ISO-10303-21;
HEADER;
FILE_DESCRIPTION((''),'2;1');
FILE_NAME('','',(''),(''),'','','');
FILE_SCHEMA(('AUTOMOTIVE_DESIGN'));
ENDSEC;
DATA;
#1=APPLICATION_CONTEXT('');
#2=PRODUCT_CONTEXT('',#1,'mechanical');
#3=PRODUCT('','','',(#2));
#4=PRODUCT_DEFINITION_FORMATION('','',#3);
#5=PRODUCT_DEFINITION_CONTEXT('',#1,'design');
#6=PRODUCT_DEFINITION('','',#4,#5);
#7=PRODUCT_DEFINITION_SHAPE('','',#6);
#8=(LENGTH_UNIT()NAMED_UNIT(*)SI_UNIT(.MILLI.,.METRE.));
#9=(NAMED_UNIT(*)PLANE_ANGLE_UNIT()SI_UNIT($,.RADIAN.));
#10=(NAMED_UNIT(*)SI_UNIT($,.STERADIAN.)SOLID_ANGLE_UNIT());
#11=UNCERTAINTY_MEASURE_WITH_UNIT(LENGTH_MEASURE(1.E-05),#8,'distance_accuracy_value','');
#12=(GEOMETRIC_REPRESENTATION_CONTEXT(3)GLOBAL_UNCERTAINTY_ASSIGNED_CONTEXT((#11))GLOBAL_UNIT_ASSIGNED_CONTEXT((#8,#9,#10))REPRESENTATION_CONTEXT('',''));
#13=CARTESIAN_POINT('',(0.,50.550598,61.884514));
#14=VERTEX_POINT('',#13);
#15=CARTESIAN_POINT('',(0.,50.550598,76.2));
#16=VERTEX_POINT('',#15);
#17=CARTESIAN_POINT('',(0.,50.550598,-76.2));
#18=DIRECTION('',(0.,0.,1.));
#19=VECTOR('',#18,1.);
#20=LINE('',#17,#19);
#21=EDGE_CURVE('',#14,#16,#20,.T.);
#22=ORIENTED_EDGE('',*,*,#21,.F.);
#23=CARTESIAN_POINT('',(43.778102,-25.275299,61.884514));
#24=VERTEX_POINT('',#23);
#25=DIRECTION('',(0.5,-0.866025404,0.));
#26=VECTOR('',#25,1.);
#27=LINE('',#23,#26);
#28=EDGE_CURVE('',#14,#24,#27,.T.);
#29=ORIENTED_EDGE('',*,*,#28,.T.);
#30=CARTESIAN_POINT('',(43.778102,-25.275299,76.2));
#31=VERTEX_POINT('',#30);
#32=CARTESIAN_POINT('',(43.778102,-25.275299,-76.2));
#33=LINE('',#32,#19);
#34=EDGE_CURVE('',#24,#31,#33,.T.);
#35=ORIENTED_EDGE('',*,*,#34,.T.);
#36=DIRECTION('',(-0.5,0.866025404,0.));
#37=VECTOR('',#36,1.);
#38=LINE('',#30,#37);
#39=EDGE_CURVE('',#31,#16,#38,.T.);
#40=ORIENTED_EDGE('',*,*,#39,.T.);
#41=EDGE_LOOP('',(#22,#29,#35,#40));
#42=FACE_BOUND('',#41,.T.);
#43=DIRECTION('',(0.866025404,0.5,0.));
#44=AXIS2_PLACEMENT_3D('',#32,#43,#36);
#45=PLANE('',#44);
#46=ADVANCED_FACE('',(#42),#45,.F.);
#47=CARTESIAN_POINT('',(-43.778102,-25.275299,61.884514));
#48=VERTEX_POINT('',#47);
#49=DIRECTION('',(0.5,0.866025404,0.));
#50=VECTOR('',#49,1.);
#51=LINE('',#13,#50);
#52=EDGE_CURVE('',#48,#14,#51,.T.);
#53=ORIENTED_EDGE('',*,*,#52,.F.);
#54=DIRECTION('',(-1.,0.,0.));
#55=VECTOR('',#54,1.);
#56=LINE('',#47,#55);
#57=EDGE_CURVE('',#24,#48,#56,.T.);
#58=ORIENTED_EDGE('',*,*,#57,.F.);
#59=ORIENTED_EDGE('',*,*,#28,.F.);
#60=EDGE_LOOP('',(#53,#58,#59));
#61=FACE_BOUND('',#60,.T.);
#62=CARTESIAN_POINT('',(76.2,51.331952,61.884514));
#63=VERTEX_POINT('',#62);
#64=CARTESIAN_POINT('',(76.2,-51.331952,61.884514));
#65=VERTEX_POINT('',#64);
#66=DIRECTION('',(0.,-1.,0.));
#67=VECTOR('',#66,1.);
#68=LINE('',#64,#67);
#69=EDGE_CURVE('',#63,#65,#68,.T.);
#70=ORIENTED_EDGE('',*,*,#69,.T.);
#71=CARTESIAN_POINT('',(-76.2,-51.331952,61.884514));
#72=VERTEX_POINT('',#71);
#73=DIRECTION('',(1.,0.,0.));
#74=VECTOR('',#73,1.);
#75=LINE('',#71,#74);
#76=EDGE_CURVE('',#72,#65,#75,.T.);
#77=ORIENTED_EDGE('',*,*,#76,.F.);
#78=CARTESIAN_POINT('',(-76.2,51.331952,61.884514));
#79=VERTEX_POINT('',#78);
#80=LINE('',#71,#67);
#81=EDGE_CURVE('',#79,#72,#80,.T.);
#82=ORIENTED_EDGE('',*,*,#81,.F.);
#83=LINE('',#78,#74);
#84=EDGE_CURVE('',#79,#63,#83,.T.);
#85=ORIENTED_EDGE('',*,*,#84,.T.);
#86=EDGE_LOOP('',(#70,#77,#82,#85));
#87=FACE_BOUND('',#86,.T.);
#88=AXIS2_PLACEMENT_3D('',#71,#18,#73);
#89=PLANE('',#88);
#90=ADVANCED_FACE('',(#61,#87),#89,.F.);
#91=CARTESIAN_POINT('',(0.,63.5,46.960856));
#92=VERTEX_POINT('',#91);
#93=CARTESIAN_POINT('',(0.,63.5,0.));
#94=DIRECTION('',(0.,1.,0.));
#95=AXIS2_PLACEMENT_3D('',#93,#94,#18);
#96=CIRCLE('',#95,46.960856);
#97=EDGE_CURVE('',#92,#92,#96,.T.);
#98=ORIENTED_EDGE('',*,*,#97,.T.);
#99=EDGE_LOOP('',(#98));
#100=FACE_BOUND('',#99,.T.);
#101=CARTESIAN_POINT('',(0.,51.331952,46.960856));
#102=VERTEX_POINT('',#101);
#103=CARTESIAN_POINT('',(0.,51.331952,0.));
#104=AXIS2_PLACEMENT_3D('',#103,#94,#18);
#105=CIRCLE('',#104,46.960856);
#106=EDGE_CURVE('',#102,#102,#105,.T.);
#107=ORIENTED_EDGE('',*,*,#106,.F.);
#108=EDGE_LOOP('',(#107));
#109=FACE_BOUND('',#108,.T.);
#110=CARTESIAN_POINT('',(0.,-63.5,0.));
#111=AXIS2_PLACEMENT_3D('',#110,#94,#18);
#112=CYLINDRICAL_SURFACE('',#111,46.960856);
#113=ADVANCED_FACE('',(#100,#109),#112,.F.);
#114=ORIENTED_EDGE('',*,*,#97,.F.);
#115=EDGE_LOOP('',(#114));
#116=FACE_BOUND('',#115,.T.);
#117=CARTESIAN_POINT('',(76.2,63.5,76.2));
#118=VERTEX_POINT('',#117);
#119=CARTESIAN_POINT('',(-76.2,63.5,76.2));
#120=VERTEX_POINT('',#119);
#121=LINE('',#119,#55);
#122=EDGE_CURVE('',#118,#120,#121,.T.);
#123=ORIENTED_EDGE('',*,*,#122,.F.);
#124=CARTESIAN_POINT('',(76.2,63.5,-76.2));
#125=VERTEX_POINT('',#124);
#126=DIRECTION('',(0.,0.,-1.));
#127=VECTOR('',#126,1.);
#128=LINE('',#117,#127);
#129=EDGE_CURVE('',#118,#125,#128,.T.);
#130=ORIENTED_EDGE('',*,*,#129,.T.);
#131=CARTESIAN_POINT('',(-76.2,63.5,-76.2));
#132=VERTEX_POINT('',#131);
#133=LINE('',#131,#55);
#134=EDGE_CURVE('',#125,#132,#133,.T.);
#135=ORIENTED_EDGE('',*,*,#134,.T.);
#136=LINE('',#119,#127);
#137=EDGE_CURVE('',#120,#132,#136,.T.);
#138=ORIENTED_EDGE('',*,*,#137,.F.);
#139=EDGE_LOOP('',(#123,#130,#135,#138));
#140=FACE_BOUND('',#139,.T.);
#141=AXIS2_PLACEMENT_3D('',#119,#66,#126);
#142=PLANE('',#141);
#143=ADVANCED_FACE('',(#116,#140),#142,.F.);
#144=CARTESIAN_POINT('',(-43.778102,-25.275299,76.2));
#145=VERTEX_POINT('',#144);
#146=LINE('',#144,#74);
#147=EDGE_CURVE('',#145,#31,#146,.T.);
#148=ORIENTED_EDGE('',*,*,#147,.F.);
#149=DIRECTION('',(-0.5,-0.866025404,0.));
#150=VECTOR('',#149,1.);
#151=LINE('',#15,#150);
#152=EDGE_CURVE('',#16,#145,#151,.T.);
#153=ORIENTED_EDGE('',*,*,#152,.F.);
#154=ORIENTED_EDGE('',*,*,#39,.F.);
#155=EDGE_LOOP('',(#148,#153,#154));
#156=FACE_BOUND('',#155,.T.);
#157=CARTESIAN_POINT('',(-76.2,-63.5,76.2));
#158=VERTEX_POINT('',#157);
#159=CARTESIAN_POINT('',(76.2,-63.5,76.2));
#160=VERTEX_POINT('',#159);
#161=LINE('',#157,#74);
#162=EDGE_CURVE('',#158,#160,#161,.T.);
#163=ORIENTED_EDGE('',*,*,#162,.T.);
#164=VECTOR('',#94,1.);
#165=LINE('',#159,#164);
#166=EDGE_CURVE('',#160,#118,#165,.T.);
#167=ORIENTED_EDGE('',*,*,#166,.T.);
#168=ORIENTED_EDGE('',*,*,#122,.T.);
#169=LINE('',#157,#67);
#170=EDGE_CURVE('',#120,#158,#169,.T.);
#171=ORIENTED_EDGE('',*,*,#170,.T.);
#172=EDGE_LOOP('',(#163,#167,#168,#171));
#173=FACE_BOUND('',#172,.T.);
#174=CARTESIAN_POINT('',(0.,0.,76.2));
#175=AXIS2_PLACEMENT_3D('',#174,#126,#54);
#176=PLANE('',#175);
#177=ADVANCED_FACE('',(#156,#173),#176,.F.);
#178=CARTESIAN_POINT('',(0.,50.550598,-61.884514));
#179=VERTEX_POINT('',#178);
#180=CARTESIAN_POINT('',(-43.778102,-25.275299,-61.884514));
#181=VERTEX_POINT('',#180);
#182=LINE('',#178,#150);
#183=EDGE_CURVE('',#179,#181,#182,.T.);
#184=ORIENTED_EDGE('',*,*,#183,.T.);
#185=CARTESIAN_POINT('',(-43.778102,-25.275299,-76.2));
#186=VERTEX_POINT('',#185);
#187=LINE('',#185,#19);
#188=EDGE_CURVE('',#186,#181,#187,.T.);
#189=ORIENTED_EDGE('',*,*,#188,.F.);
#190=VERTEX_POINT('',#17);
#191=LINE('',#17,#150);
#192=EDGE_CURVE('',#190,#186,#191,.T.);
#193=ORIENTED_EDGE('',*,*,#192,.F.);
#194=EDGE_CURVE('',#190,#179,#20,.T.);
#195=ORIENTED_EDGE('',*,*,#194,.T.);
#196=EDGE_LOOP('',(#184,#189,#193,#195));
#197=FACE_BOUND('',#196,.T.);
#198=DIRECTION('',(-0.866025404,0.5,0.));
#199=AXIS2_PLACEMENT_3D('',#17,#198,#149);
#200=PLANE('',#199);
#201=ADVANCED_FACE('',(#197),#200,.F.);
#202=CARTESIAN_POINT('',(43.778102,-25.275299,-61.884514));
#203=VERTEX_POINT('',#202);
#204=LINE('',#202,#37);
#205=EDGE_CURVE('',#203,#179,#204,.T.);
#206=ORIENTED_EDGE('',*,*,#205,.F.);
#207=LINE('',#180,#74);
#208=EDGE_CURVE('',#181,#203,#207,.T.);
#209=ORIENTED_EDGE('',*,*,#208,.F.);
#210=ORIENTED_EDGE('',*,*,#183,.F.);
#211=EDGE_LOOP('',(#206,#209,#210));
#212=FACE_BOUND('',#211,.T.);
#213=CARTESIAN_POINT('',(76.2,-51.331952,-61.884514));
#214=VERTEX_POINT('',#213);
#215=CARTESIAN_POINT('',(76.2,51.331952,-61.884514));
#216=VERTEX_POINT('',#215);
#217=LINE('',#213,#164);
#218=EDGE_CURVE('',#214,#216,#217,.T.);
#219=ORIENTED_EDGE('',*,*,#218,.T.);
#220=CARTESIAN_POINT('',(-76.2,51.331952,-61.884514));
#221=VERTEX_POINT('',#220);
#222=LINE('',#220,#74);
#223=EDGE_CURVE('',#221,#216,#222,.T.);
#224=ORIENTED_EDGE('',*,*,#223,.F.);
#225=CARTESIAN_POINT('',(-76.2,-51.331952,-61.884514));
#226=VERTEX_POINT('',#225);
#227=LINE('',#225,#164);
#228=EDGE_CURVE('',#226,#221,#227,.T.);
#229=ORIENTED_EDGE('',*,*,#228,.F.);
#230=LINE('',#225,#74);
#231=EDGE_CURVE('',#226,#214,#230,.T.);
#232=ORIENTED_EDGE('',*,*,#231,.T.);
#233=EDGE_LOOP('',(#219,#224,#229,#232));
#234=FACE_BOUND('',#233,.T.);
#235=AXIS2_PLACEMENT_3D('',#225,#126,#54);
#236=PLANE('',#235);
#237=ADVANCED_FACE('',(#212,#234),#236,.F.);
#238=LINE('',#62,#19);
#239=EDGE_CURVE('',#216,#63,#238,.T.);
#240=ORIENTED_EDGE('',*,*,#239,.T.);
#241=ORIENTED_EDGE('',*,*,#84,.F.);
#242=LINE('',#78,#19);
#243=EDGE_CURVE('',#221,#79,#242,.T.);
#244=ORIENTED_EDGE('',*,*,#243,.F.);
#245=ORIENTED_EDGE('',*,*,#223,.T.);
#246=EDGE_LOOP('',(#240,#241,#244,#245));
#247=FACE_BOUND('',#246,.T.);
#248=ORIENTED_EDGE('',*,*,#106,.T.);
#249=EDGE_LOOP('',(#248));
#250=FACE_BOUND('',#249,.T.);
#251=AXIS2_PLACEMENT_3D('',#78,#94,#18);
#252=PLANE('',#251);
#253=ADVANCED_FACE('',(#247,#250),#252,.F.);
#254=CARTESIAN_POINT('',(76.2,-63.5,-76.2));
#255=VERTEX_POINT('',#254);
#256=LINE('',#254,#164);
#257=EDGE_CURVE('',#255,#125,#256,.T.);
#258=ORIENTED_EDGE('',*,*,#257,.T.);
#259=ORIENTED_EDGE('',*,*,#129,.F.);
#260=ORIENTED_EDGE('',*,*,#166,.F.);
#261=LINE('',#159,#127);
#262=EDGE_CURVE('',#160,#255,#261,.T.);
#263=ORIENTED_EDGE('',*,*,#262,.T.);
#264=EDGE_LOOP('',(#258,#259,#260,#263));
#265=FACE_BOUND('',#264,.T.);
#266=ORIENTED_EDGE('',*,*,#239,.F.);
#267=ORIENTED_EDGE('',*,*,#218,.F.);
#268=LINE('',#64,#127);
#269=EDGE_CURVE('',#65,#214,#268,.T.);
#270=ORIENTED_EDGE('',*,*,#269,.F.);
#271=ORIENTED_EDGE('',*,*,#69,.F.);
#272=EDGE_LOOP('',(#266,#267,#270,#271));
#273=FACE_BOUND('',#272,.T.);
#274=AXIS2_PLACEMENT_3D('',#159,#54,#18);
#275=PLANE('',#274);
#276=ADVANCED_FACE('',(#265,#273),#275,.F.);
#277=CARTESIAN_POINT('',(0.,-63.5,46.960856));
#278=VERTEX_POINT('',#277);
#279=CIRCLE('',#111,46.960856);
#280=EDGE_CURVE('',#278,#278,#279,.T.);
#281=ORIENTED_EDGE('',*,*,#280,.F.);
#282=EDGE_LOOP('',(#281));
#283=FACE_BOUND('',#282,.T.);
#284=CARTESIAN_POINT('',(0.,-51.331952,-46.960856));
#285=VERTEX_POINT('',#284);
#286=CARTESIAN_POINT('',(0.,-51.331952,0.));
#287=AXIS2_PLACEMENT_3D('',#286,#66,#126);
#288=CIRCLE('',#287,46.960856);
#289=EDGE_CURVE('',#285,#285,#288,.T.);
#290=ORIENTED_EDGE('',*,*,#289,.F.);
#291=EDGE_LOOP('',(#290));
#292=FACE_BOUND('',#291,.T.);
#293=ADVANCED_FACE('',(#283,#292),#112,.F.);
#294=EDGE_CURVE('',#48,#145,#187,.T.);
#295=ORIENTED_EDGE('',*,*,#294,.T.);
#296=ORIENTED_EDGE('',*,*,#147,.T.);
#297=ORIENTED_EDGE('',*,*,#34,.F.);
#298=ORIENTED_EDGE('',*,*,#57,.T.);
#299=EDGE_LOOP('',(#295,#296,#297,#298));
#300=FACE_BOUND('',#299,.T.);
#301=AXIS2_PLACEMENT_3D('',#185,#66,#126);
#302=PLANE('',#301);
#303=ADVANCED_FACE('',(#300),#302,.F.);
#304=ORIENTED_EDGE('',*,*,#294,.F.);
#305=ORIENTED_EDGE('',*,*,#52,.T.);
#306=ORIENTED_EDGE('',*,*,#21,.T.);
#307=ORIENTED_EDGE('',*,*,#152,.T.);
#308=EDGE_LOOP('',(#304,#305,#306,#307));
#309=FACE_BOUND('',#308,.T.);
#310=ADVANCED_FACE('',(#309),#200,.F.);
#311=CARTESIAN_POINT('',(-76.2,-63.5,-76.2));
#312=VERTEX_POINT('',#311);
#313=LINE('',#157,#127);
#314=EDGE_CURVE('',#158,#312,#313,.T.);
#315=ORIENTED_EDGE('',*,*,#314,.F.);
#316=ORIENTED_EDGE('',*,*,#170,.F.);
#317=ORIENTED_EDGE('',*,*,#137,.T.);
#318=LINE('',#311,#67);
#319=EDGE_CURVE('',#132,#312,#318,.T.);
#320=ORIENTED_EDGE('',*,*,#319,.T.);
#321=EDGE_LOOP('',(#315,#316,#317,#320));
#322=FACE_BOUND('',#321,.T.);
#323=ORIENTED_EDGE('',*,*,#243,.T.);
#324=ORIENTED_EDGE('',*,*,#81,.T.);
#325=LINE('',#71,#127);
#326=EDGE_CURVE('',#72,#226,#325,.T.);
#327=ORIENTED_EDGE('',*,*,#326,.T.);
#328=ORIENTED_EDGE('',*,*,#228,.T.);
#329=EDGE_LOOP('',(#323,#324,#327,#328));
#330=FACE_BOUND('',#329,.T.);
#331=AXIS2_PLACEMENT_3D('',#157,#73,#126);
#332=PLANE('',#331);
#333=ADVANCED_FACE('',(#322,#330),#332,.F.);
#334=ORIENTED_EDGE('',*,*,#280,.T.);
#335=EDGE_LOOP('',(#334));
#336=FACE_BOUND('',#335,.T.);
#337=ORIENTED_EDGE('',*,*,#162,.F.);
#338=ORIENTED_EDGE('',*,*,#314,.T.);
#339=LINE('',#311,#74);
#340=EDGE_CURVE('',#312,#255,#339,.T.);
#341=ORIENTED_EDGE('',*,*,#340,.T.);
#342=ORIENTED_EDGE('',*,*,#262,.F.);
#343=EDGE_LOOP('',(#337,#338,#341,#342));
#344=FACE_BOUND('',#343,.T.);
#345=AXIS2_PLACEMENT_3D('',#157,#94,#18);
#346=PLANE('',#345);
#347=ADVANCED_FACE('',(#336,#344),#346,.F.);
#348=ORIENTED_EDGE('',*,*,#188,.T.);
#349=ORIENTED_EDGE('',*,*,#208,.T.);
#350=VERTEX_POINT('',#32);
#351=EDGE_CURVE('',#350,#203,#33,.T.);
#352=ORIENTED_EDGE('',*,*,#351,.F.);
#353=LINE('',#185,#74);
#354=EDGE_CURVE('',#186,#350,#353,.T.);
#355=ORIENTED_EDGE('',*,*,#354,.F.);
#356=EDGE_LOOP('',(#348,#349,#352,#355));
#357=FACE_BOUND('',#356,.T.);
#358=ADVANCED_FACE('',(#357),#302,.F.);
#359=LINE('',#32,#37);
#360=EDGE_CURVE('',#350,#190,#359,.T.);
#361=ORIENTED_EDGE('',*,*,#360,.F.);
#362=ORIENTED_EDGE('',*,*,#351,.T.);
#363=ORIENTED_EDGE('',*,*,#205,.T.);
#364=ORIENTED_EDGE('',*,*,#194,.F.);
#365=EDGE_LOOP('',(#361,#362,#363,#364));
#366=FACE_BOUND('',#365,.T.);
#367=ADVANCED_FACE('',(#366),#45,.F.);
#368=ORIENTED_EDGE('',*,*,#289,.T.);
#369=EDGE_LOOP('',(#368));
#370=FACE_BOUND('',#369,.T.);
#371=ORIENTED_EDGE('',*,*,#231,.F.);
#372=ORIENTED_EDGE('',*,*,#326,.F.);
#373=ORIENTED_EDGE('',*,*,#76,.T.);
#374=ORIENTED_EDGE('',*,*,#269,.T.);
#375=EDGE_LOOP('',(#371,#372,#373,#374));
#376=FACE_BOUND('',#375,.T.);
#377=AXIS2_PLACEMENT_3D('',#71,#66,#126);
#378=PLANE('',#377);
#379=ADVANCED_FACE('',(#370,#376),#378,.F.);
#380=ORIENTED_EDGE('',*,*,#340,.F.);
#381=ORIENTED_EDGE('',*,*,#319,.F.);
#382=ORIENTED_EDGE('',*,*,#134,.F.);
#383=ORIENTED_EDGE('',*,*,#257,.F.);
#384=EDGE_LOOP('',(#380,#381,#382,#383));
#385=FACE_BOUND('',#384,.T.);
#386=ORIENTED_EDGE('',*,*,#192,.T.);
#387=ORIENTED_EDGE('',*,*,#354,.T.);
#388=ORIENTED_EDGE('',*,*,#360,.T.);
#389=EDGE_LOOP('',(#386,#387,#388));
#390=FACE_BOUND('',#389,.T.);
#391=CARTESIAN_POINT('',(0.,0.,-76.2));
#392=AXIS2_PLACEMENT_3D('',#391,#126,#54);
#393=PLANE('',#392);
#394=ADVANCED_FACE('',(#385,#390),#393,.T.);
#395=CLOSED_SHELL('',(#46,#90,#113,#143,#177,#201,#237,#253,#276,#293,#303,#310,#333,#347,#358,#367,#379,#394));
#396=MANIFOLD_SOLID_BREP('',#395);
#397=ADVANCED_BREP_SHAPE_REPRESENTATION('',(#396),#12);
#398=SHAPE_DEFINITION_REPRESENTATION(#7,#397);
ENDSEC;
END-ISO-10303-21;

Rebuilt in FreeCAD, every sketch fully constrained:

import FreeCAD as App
import Part
import Sketcher
Q = App.Units.Quantity

doc = App.newDocument("Part")
body = doc.addObject("PartDesign::Body", "Body")

# Sketch on XY plane
sketch1 = body.newObject("Sketcher::SketchObject", "Sketch")
sketch1.AttachmentSupport = (doc.getObject("XY_Plane"), [""])
sketch1.MapMode = "FlatFace"
sketch1.addGeometry(Part.LineSegment(App.Vector(-76, 64, 0), App.Vector(-76, -64, 0)), False)
sketch1.addGeometry(Part.LineSegment(App.Vector(-76, -64, 0), App.Vector(76, -64, 0)), False)
sketch1.addGeometry(Part.LineSegment(App.Vector(76, -64, 0), App.Vector(76, 64, 0)), False)
sketch1.addGeometry(Part.LineSegment(App.Vector(76, 64, 0), App.Vector(-76, 64, 0)), False)
sketch1.addConstraint(Sketcher.Constraint("Coincident", 0, 2, 1, 1))
sketch1.addConstraint(Sketcher.Constraint("Coincident", 1, 2, 2, 1))
sketch1.addConstraint(Sketcher.Constraint("Coincident", 2, 2, 3, 1))
sketch1.addConstraint(Sketcher.Constraint("Coincident", 3, 2, 0, 1))
sketch1.addConstraint(Sketcher.Constraint("Vertical", 0))
sketch1.addConstraint(Sketcher.Constraint("Horizontal", 1))
sketch1.addConstraint(Sketcher.Constraint("Vertical", 2))
sketch1.addConstraint(Sketcher.Constraint("Horizontal", 3))
sketch1.addConstraint(Sketcher.Constraint("Symmetric", 0, 2, 2, 2, -1, 1))
sketch1.addConstraint(Sketcher.Constraint("DistanceX", 1, 1, 1, 2, Q("6 in")))
sketch1.addConstraint(Sketcher.Constraint("DistanceY", 0, 2, 0, 1, Q("5 in")))
pad1 = body.newObject("PartDesign::Pad", "Pad")
pad1.Profile = sketch1
pad1.Length = Q("6 in")
pad1.Midplane = True

# Sketch on XY plane
sketch2 = body.newObject("Sketcher::SketchObject", "Sketch001")
sketch2.AttachmentSupport = (doc.getObject("XY_Plane"), [""])
sketch2.MapMode = "FlatFace"
sketch2.AttachmentOffset = App.Placement(App.Vector(0, 0, 3 * 25.4), App.Rotation())
sketch2.addGeometry(Part.LineSegment(App.Vector(0, 51, 0), App.Vector(-44, -25, 0)), False)
sketch2.addGeometry(Part.LineSegment(App.Vector(-44, -25, 0), App.Vector(44, -25, 0)), False)
sketch2.addGeometry(Part.LineSegment(App.Vector(44, -25, 0), App.Vector(0, 51, 0)), False)
sketch2.addConstraint(Sketcher.Constraint("Coincident", 0, 2, 1, 1))
sketch2.addConstraint(Sketcher.Constraint("Coincident", 1, 2, 2, 1))
sketch2.addConstraint(Sketcher.Constraint("Coincident", 2, 2, 0, 1))
sketch2.addConstraint(Sketcher.Constraint("Horizontal", 1))
sketch2.addConstraint(Sketcher.Constraint("PointOnObject", 2, 2, -2))
sketch2.addConstraint(Sketcher.Constraint("Equal", 0, 2))
sketch2.addConstraint(Sketcher.Constraint("Angle", 0, Q("-120 deg")))
sketch2.addConstraint(Sketcher.Constraint("DistanceY", 0, 2, -1, 1, Q("25.275299 mm")))
sketch2.addConstraint(Sketcher.Constraint("DistanceY", -1, 1, 2, 2, Q("50.550598 mm")))
pocket1 = body.newObject("PartDesign::Pocket", "Pocket")
pocket1.Profile = sketch2
pocket1.Type = "ThroughAll"

# Sketch on YZ plane
sketch3 = body.newObject("Sketcher::SketchObject", "Sketch002")
sketch3.AttachmentSupport = (doc.getObject("YZ_Plane"), [""])
sketch3.MapMode = "FlatFace"
sketch3.AttachmentOffset = App.Placement(App.Vector(0, 0, 3 * 25.4), App.Rotation())
sketch3.addGeometry(Part.LineSegment(App.Vector(51, 62, 0), App.Vector(-51, 62, 0)), False)
sketch3.addGeometry(Part.LineSegment(App.Vector(-51, 62, 0), App.Vector(-51, -62, 0)), False)
sketch3.addGeometry(Part.LineSegment(App.Vector(-51, -62, 0), App.Vector(51, -62, 0)), False)
sketch3.addGeometry(Part.LineSegment(App.Vector(51, -62, 0), App.Vector(51, 62, 0)), False)
sketch3.addConstraint(Sketcher.Constraint("Coincident", 0, 2, 1, 1))
sketch3.addConstraint(Sketcher.Constraint("Coincident", 1, 2, 2, 1))
sketch3.addConstraint(Sketcher.Constraint("Coincident", 2, 2, 3, 1))
sketch3.addConstraint(Sketcher.Constraint("Coincident", 3, 2, 0, 1))
sketch3.addConstraint(Sketcher.Constraint("Horizontal", 0))
sketch3.addConstraint(Sketcher.Constraint("Vertical", 1))
sketch3.addConstraint(Sketcher.Constraint("Horizontal", 2))
sketch3.addConstraint(Sketcher.Constraint("Vertical", 3))
sketch3.addConstraint(Sketcher.Constraint("Symmetric", 0, 2, 2, 2, -1, 1))
sketch3.addConstraint(Sketcher.Constraint("DistanceX", 0, 2, 0, 1, Q("102.663904 mm")))
sketch3.addConstraint(Sketcher.Constraint("DistanceY", 1, 2, 1, 1, Q("123.769028 mm")))
pocket2 = body.newObject("PartDesign::Pocket", "Pocket001")
pocket2.Profile = sketch3
pocket2.Type = "ThroughAll"

# Sketch on XZ plane
sketch4 = body.newObject("Sketcher::SketchObject", "Sketch003")
sketch4.AttachmentSupport = (doc.getObject("XZ_Plane"), [""])
sketch4.MapMode = "FlatFace"
sketch4.AttachmentOffset = App.Placement(App.Vector(0, 0, -2.5 * 25.4), App.Rotation())
sketch4.addGeometry(Part.Circle(App.Vector(0, 0, 0), App.Vector(0, 0, 1), 47), False)
sketch4.addConstraint(Sketcher.Constraint("Coincident", 0, 3, -1, 1))
sketch4.addConstraint(Sketcher.Constraint("Diameter", 0, Q("93.921712 mm")))
pocket3 = body.newObject("PartDesign::Pocket", "Pocket002")
pocket3.Profile = sketch4
pocket3.Type = "ThroughAll"
pocket3.Reversed = True

doc.recompute()
